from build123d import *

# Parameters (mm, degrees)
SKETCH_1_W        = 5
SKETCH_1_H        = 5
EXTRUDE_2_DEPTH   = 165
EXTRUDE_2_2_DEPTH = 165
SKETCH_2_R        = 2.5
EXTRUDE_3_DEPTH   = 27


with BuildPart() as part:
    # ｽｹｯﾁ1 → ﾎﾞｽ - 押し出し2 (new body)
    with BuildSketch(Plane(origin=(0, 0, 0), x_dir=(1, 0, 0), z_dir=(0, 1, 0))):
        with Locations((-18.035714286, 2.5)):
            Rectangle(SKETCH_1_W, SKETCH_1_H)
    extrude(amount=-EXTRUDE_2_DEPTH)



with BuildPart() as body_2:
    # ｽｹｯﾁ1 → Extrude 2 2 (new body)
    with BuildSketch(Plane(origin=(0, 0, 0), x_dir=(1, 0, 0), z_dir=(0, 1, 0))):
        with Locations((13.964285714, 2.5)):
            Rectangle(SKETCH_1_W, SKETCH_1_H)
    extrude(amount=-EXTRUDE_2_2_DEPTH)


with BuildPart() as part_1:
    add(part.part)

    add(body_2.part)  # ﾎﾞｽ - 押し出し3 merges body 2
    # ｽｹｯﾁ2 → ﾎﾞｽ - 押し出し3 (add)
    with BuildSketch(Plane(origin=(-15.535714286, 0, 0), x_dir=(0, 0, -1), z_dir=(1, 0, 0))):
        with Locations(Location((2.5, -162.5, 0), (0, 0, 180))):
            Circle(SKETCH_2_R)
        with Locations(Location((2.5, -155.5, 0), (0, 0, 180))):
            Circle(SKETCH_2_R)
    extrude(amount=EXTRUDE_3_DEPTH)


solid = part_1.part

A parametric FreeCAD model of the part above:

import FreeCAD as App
import Part
import Sketcher

doc = App.newDocument("Part")
body = doc.addObject("PartDesign::Body", "Body")

# Sketch on XZ plane
sketch1 = doc.addObject("Sketcher::SketchObject", "Sketch")
body.addObject(sketch1)
sketch1.AttachmentSupport = (doc.XZ_Plane, [""])
sketch1.MapMode = "FlatFace"
sketch1.addGeometry(Part.LineSegment(App.Vector(-21, -5, 0), App.Vector(-21, 0, 0)), False)
sketch1.addGeometry(Part.LineSegment(App.Vector(-21, 0, 0), App.Vector(-16, 0, 0)), False)
sketch1.addGeometry(Part.LineSegment(App.Vector(-16, 0, 0), App.Vector(-16, -5, 0)), False)
sketch1.addGeometry(Part.LineSegment(App.Vector(-16, -5, 0), App.Vector(-21, -5, 0)), False)
sketch1.addConstraint(Sketcher.Constraint("Coincident", 0, 2, 1, 1))
sketch1.addConstraint(Sketcher.Constraint("Coincident", 1, 2, 2, 1))
sketch1.addConstraint(Sketcher.Constraint("Coincident", 2, 2, 3, 1))
sketch1.addConstraint(Sketcher.Constraint("Coincident", 3, 2, 0, 1))
sketch1.addConstraint(Sketcher.Constraint("Vertical", 0))
sketch1.addConstraint(Sketcher.Constraint("Horizontal", 1))
sketch1.addConstraint(Sketcher.Constraint("Vertical", 2))
sketch1.addConstraint(Sketcher.Constraint("Horizontal", 3))
sketch1.addConstraint(Sketcher.Constraint("PointOnObject", 0, 2, -1))
sketch1.addConstraint(Sketcher.Constraint("Equal", 3, 0))
sketch1.addConstraint(Sketcher.Constraint("DistanceX", 1, 1, 1, 2, 5.0))
sketch1.addConstraint(Sketcher.Constraint("DistanceX", 0, 2, -1, 1, 20.535714))
pad1 = doc.addObject("PartDesign::Pad", "Pad")
body.addObject(pad1)
pad1.Profile = sketch1
pad1.Length = 165
body2 = doc.addObject("PartDesign::Body", "Body001")

# Sketch on XZ plane
sketch2 = doc.addObject("Sketcher::SketchObject", "Sketch001")
body2.addObject(sketch2)
sketch2.AttachmentSupport = (doc.getObject("XZ_Plane001"), [""])
sketch2.MapMode = "FlatFace"
sketch2.addGeometry(Part.LineSegment(App.Vector(11.5, -5, 0), App.Vector(11.5, 0, 0)), False)
sketch2.addGeometry(Part.LineSegment(App.Vector(11.5, 0, 0), App.Vector(16.5, 0, 0)), False)
sketch2.addGeometry(Part.LineSegment(App.Vector(16.5, 0, 0), App.Vector(16.5, -5, 0)), False)
sketch2.addGeometry(Part.LineSegment(App.Vector(16.5, -5, 0), App.Vector(11.5, -5, 0)), False)
sketch2.addConstraint(Sketcher.Constraint("Coincident", 0, 2, 1, 1))
sketch2.addConstraint(Sketcher.Constraint("Coincident", 1, 2, 2, 1))
sketch2.addConstraint(Sketcher.Constraint("Coincident", 2, 2, 3, 1))
sketch2.addConstraint(Sketcher.Constraint("Coincident", 3, 2, 0, 1))
sketch2.addConstraint(Sketcher.Constraint("Vertical", 0))
sketch2.addConstraint(Sketcher.Constraint("Horizontal", 1))
sketch2.addConstraint(Sketcher.Constraint("Vertical", 2))
sketch2.addConstraint(Sketcher.Constraint("Horizontal", 3))
sketch2.addConstraint(Sketcher.Constraint("PointOnObject", 0, 2, -1))
sketch2.addConstraint(Sketcher.Constraint("Equal", 3, 0))
sketch2.addConstraint(Sketcher.Constraint("DistanceX", 1, 1, 1, 2, 5.0))
sketch2.addConstraint(Sketcher.Constraint("DistanceX", -1, 1, 0, 2, 11.464286))
pad2 = doc.addObject("PartDesign::Pad", "Pad001")
body2.addObject(pad2)
pad2.Profile = sketch2
pad2.Length = 165
body.AllowCompound = True
doc.recompute()

boolean = doc.addObject("PartDesign::Boolean", "Boolean")
body.addObject(boolean)
boolean.Type = "Fuse"
boolean.addObjects([body2])

# Sketch on YZ plane
sketch3 = doc.addObject("Sketcher::SketchObject", "Sketch002")
body.addObject(sketch3)
sketch3.AttachmentSupport = (doc.YZ_Plane, [""])
sketch3.MapMode = "FlatFace"
sketch3.AttachmentOffset = App.Placement(App.Vector(0, 0, -15.535714), App.Rotation())
sketch3.addGeometry(Part.Circle(App.Vector(-162.5, -2.5, 0), App.Vector(0, 0, 1), 2.5), False)
sketch3.addGeometry(Part.Circle(App.Vector(-155.5, -2.5, 0), App.Vector(0, 0, 1), 2.5), False)
sketch3.addConstraint(Sketcher.Constraint("Equal", 0, 1))
sketch3.addConstraint(Sketcher.Constraint("Horizontal", 0, 3, 1, 3))
sketch3.addConstraint(Sketcher.Constraint("Diameter", 0, 5.0))
sketch3.addConstraint(Sketcher.Constraint("DistanceX", 0, 3, 1, 3, 7.0))
sketch3.addConstraint(Sketcher.Constraint("DistanceX", 0, 3, -1, 1, 162.5))
sketch3.addConstraint(Sketcher.Constraint("DistanceY", 0, 3, -1, 1, 2.5))
pad3 = doc.addObject("PartDesign::Pad", "Pad002")
body.addObject(pad3)
pad3.Profile = sketch3
pad3.Length = 27

doc.recompute()
